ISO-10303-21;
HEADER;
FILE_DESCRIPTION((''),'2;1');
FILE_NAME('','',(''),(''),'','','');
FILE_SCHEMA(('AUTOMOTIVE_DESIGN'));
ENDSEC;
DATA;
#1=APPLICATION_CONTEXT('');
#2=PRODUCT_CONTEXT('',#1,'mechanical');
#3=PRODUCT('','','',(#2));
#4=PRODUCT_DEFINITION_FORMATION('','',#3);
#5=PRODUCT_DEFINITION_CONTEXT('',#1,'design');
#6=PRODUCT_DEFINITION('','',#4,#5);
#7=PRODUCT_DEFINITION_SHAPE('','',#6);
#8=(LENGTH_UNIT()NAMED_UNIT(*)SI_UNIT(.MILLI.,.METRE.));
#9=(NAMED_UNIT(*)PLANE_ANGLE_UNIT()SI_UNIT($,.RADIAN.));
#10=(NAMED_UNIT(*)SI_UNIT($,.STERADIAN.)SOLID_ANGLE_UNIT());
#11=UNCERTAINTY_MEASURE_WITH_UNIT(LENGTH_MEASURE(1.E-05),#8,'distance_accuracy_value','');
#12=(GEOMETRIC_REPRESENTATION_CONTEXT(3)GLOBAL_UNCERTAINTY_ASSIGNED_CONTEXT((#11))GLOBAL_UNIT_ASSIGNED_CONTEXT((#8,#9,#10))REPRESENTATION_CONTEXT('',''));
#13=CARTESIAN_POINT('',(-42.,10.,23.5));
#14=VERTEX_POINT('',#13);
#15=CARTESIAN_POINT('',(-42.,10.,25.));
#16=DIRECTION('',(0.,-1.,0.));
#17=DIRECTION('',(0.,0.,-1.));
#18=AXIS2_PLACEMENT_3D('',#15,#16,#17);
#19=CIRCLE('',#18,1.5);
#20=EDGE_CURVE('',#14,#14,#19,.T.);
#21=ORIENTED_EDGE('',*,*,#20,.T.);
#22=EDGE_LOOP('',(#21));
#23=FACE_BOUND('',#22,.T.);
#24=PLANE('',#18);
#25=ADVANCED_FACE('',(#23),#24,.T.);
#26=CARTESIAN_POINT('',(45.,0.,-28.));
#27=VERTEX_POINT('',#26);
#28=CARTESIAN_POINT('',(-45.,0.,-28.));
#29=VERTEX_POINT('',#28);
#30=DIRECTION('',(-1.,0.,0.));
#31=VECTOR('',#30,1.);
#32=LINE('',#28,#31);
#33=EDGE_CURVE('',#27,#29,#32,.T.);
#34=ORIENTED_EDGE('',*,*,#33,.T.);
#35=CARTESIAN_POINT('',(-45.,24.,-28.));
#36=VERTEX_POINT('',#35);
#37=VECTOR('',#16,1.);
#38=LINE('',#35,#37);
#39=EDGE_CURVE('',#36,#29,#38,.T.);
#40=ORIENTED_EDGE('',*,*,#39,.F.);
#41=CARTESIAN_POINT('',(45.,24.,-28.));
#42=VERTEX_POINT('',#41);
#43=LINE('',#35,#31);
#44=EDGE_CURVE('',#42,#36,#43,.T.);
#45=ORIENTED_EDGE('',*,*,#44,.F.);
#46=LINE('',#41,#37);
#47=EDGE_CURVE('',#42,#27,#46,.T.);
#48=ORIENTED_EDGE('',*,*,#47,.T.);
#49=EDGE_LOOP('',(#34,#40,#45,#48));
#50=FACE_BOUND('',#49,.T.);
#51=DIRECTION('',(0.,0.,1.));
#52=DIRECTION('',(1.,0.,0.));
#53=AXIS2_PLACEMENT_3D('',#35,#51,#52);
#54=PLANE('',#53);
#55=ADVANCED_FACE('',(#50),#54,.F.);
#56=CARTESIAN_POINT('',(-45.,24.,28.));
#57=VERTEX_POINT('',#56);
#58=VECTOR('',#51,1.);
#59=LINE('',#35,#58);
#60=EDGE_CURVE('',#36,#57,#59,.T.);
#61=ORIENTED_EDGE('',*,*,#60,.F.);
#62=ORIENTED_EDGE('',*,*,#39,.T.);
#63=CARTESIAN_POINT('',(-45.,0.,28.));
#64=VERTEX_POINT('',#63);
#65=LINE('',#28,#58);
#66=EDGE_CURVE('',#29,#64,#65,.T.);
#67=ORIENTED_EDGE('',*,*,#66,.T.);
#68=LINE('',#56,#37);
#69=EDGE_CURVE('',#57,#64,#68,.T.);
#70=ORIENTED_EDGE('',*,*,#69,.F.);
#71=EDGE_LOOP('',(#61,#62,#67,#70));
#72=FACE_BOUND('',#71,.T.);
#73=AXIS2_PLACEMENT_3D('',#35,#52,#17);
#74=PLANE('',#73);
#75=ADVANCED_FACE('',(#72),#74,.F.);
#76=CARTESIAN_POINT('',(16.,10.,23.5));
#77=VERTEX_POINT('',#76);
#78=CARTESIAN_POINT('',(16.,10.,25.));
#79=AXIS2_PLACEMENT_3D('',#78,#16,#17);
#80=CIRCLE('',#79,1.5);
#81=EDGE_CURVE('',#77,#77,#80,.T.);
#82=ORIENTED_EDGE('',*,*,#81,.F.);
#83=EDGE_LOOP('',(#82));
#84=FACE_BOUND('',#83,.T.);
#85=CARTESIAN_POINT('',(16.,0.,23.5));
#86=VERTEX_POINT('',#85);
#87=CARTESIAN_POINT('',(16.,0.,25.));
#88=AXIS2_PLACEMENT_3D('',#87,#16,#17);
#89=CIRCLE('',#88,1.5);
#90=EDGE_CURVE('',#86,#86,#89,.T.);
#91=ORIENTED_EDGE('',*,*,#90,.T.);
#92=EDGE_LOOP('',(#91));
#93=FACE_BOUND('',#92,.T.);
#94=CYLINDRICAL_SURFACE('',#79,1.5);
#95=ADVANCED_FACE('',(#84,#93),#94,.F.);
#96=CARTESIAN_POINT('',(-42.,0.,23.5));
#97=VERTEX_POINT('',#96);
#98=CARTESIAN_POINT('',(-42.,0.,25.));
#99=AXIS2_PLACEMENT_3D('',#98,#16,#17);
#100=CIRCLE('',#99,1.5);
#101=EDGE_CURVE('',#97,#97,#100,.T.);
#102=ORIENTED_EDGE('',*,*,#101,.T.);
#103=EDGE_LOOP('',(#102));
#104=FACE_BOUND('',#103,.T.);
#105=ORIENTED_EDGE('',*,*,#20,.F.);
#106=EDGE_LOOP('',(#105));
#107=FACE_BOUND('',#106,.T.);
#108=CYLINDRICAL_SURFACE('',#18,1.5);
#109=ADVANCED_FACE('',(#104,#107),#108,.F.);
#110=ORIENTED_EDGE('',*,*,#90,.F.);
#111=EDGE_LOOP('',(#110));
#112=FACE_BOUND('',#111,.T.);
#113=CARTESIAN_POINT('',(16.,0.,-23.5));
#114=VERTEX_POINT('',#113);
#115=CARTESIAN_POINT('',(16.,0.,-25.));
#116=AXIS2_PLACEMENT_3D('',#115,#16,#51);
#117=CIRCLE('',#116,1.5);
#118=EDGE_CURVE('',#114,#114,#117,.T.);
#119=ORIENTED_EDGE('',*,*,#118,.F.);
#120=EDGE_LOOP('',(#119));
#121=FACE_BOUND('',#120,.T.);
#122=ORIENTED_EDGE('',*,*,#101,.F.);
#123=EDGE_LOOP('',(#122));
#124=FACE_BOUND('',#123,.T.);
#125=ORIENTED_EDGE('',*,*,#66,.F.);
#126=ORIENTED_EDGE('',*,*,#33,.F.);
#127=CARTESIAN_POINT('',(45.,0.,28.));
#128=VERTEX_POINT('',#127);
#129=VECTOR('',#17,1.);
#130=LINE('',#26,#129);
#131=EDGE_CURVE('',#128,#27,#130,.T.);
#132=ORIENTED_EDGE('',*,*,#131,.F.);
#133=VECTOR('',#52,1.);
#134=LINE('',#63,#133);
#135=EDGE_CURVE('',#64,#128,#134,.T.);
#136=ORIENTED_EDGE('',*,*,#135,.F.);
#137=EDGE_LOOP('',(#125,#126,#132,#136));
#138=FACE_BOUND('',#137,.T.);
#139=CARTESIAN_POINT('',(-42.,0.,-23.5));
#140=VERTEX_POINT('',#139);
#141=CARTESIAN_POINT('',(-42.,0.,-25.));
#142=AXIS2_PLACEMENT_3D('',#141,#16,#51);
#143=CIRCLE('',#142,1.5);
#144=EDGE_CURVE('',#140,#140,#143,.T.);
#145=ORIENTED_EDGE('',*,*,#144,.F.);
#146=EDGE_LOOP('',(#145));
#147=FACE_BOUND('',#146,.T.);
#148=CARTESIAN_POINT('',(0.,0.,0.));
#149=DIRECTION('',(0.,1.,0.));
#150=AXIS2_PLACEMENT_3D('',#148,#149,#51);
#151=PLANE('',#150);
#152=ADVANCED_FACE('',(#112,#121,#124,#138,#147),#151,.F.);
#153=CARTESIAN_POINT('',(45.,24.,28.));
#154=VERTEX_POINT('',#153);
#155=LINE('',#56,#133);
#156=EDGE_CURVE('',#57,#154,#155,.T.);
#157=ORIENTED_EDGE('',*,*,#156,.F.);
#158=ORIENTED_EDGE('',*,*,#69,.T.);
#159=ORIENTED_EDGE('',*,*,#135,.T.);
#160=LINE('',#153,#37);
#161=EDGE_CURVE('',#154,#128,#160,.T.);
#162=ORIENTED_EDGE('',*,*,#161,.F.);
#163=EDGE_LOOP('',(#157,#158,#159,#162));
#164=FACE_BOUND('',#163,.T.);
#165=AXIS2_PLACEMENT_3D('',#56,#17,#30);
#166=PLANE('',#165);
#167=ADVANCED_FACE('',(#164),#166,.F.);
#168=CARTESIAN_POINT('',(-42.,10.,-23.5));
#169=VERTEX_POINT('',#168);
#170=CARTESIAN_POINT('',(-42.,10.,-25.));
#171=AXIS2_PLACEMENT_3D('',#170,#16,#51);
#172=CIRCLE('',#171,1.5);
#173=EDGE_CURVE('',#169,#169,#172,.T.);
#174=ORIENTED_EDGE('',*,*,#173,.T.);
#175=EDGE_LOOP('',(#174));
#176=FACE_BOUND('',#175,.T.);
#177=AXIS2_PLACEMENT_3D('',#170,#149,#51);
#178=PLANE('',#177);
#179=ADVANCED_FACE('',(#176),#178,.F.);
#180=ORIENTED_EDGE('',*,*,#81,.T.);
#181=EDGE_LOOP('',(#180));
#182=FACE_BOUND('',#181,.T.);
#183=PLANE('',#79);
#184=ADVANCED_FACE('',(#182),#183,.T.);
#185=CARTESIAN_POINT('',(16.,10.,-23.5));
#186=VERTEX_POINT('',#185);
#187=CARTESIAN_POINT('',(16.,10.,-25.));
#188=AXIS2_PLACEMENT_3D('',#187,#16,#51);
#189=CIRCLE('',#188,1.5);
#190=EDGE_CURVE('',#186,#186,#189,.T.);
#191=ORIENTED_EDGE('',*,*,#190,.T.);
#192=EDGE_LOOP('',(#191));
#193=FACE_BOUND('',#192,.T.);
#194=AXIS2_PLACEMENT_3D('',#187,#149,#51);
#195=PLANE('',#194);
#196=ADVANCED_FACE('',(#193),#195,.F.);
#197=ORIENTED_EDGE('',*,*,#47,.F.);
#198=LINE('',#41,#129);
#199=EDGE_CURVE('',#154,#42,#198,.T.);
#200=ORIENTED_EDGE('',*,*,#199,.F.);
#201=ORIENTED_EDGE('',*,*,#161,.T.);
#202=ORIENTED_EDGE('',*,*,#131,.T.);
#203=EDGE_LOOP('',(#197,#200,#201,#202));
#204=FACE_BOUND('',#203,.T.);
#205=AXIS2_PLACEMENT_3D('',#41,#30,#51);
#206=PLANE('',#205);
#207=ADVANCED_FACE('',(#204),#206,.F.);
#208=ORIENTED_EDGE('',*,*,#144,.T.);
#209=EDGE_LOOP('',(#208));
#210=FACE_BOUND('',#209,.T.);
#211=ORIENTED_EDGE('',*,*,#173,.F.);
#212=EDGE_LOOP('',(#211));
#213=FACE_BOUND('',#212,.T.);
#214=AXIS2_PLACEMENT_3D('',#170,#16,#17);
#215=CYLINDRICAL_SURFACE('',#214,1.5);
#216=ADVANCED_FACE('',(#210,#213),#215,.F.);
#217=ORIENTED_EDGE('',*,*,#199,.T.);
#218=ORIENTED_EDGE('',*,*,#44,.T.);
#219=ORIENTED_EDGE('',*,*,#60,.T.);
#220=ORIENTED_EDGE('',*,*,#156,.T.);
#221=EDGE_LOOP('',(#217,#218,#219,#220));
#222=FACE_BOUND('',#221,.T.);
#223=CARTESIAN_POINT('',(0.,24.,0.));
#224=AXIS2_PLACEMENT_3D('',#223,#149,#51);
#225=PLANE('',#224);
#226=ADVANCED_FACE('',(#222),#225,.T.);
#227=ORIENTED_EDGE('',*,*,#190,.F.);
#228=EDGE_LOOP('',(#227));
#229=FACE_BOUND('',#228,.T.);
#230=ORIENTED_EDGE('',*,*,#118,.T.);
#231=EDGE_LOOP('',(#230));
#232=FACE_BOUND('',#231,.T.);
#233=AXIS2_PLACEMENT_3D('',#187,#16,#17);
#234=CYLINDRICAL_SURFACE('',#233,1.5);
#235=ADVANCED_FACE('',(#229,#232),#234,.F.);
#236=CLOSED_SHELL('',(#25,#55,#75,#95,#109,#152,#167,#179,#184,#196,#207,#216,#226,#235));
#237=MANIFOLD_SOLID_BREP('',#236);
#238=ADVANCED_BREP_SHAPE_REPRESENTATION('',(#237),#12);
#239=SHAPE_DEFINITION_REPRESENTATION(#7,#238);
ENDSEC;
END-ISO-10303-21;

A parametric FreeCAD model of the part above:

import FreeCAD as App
import Part
import Sketcher
from FreeCAD import Vector


def add_polygon(sketch, points):
    """Adds a closed chain of lines whose ends are joined by coincident constraints."""
    first, n = sketch.GeometryCount, len(points)
    for a, b in zip(points, points[1:] + points[:1]):
        sketch.addGeometry(Part.LineSegment(App.Vector(*a, 0), App.Vector(*b, 0)), False)
    for i in range(n):
        sketch.addConstraint(Sketcher.Constraint("Coincident", first + i, 2, first + (i + 1) % n, 1))

doc = App.newDocument("Part")
body = doc.addObject("PartDesign::Body", "Body")

sketch1 = body.newObject("Sketcher::SketchObject", "Sketch")
sketch1.AttachmentSupport = (doc.getObject("XZ_Plane"), [""])
sketch1.MapMode = "FlatFace"
add_polygon(sketch1, [(-45, -28), (-45, 28), (45, 28), (45, -28)])
sketch1.addConstraint([
    Sketcher.Constraint("Vertical", 0),
    Sketcher.Constraint("Horizontal", 1),
    Sketcher.Constraint("Vertical", 2),
    Sketcher.Constraint("Horizontal", 3),
    Sketcher.Constraint("Symmetric", 0, 2, 2, 2, -1, 1),
    Sketcher.Constraint("DistanceX", 1, 1, 1, 2, 90.0),
    Sketcher.Constraint("DistanceY", 0, 1, 0, 2, 56.0),
])
pad1 = body.newObject("PartDesign::Pad", "Pad")
pad1.Profile = sketch1
pad1.Length = 24
pad1.Reversed = True

sketch2 = body.newObject("Sketcher::SketchObject", "Sketch001")
sketch2.AttachmentSupport = (doc.getObject("XZ_Plane"), [""])
sketch2.MapMode = "FlatFace"
sketch2.addGeometry([
    Part.Circle(Vector(-42, 25, 0), Vector(0, 0, 1), 1.5),
    Part.Circle(Vector(16, 25, 0), Vector(0, 0, 1), 1.5),
    Part.Circle(Vector(16, -25, 0), Vector(0, 0, 1), 1.5),
    Part.Circle(Vector(-42, -25, 0), Vector(0, 0, 1), 1.5),
], False)
sketch2.addConstraint([
    Sketcher.Constraint("Equal", 0, 1),
    Sketcher.Constraint("Equal", 1, 2),
    Sketcher.Constraint("Equal", 2, 3),
    Sketcher.Constraint("Symmetric", 1, 3, 2, 3, -1),
    Sketcher.Constraint("Symmetric", 0, 3, 3, 3, -1),
    Sketcher.Constraint("Horizontal", 0, 3, 1, 3),
    Sketcher.Constraint("Diameter", 0, 3.0),
    Sketcher.Constraint("DistanceX", 0, 3, -1, 1, 42.0),
    Sketcher.Constraint("DistanceY", -1, 1, 0, 3, 25.0),
    Sketcher.Constraint("DistanceX", -1, 1, 1, 3, 16.0),
])
pocket1 = body.newObject("PartDesign::Pocket", "Pocket")
pocket1.Profile = sketch2
pocket1.Length = 10

doc.recompute()
